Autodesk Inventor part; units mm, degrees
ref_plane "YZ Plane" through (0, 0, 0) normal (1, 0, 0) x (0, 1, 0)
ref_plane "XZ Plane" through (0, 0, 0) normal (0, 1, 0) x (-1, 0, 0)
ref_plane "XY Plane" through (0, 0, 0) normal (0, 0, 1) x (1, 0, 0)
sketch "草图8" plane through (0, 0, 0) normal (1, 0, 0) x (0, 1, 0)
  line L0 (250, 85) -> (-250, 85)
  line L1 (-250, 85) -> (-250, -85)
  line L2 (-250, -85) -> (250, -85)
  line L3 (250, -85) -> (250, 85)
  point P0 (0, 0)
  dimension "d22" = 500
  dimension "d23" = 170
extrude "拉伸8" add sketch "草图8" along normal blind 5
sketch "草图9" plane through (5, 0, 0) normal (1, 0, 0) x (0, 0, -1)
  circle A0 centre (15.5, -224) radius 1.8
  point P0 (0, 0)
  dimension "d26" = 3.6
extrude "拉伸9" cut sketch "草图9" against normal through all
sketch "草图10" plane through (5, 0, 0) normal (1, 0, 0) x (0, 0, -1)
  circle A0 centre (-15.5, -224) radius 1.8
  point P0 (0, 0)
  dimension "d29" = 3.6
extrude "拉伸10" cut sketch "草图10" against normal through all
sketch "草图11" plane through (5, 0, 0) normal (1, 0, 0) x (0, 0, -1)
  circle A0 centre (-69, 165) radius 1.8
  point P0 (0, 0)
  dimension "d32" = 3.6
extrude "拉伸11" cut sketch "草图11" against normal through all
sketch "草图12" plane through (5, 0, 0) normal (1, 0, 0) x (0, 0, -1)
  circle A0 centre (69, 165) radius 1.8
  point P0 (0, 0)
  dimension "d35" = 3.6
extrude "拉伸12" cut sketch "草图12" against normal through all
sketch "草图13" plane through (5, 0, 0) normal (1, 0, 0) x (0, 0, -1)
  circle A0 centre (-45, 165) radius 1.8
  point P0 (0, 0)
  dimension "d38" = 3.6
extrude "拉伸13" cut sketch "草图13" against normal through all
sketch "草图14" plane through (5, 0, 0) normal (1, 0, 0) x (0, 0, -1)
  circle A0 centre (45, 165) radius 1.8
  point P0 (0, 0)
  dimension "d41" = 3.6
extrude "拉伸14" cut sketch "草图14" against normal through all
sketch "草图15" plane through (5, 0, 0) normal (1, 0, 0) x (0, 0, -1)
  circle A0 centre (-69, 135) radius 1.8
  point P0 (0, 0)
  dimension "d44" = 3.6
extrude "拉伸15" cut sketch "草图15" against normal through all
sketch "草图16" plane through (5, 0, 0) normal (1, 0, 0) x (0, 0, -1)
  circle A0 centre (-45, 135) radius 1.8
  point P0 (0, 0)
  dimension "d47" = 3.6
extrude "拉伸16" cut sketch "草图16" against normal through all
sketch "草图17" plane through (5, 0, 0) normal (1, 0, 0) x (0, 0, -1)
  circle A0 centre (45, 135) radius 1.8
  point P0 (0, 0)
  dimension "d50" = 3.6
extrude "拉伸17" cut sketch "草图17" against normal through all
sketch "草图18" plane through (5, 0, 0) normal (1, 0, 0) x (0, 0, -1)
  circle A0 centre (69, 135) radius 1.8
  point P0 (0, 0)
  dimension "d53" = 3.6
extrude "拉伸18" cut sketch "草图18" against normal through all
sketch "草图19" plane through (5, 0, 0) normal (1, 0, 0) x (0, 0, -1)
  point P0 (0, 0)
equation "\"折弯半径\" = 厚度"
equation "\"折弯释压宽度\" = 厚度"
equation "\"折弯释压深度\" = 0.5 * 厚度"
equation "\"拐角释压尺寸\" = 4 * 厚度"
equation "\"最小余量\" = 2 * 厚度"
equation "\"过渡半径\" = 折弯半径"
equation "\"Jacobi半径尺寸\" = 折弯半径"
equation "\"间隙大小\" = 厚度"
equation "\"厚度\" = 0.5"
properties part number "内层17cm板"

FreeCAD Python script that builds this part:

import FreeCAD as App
import Part
import Sketcher
Q = App.Units.Quantity

doc = App.newDocument("Part")
params = doc.addObject("Spreadsheet::Sheet", "Params")
for row, (alias, value) in enumerate([
    ("sketch1_width", "500 mm"),
    ("sketch1_height", "170 mm"),
    ("pad1_length", "5 mm"),
    ("sketch2_diameter", "3.6 mm"),
    ("sketch3_diameter", "3.6 mm"),
    ("sketch4_diameter", "3.6 mm"),
    ("sketch5_diameter", "3.6 mm"),
    ("sketch6_diameter", "3.6 mm"),
    ("sketch7_diameter", "3.6 mm"),
    ("sketch8_diameter", "3.6 mm"),
    ("sketch9_diameter", "3.6 mm"),
    ("sketch10_diameter", "3.6 mm"),
    ("sketch11_diameter", "3.6 mm"),
], start=1):
    params.set(f"A{row}", alias)
    params.set(f"B{row}", "=" + value)
    params.setAlias(f"B{row}", alias)

body = doc.addObject("PartDesign::Body", "Body")

# Sketch on YZ plane
sketch1 = body.newObject("Sketcher::SketchObject", "Sketch")
sketch1.AttachmentSupport = (doc.getObject("YZ_Plane"), [""])
sketch1.MapMode = "FlatFace"
sketch1.addGeometry(Part.LineSegment(App.Vector(250, -85, 0), App.Vector(250, 85, 0)), False)
sketch1.addGeometry(Part.LineSegment(App.Vector(250, 85, 0), App.Vector(-250, 85, 0)), False)
sketch1.addGeometry(Part.LineSegment(App.Vector(-250, 85, 0), App.Vector(-250, -85, 0)), False)
sketch1.addGeometry(Part.LineSegment(App.Vector(-250, -85, 0), App.Vector(250, -85, 0)), False)
sketch1.addConstraint(Sketcher.Constraint("Coincident", 0, 2, 1, 1))
sketch1.addConstraint(Sketcher.Constraint("Coincident", 1, 2, 2, 1))
sketch1.addConstraint(Sketcher.Constraint("Coincident", 2, 2, 3, 1))
sketch1.addConstraint(Sketcher.Constraint("Coincident", 3, 2, 0, 1))
sketch1.addConstraint(Sketcher.Constraint("Vertical", 0))
sketch1.addConstraint(Sketcher.Constraint("Horizontal", 1))
sketch1.addConstraint(Sketcher.Constraint("Vertical", 2))
sketch1.addConstraint(Sketcher.Constraint("Horizontal", 3))
sketch1.addConstraint(Sketcher.Constraint("Symmetric", 0, 2, 2, 2, -1, 1))
sketch1.addConstraint(Sketcher.Constraint("DistanceX", 1, 2, 1, 1, Q("500 mm")))
sketch1.addConstraint(Sketcher.Constraint("DistanceY", 0, 1, 0, 2, Q("170 mm")))
sketch1.setExpression("Constraints[9]", "Params.sketch1_width")
sketch1.setExpression("Constraints[10]", "Params.sketch1_height")
pad1 = body.newObject("PartDesign::Pad", "Pad")
pad1.Profile = sketch1
pad1.setExpression("Length", "Params.pad1_length")

# Sketch on YZ plane
sketch2 = body.newObject("Sketcher::SketchObject", "Sketch001")
sketch2.AttachmentSupport = (doc.getObject("YZ_Plane"), [""])
sketch2.MapMode = "FlatFace"
sketch2.AttachmentOffset = App.Placement(App.Vector(0, 0, 5), App.Rotation())
sketch2.addGeometry(Part.Circle(App.Vector(-224, -15.5, 0), App.Vector(0, 0, 1), 1.8), False)
sketch2.addConstraint(Sketcher.Constraint("Diameter", 0, Q("3.6 mm")))
sketch2.addConstraint(Sketcher.Constraint("DistanceX", 0, 3, -1, 1, Q("224 mm")))
sketch2.addConstraint(Sketcher.Constraint("DistanceY", 0, 3, -1, 1, Q("15.5 mm")))
sketch2.setExpression("Constraints[0]", "Params.sketch2_diameter")
pocket1 = body.newObject("PartDesign::Pocket", "Pocket")
pocket1.Profile = sketch2
pocket1.Type = "ThroughAll"

# Sketch on YZ plane
sketch3 = body.newObject("Sketcher::SketchObject", "Sketch002")
sketch3.AttachmentSupport = (doc.getObject("YZ_Plane"), [""])
sketch3.MapMode = "FlatFace"
sketch3.AttachmentOffset = App.Placement(App.Vector(0, 0, 5), App.Rotation())
sketch3.addGeometry(Part.Circle(App.Vector(-224, 15.5, 0), App.Vector(0, 0, 1), 1.8), False)
sketch3.addConstraint(Sketcher.Constraint("Diameter", 0, Q("3.6 mm")))
sketch3.addConstraint(Sketcher.Constraint("DistanceX", 0, 3, -1, 1, Q("224 mm")))
sketch3.addConstraint(Sketcher.Constraint("DistanceY", -1, 1, 0, 3, Q("15.5 mm")))
sketch3.setExpression("Constraints[0]", "Params.sketch3_diameter")
pocket2 = body.newObject("PartDesign::Pocket", "Pocket001")
pocket2.Profile = sketch3
pocket2.Type = "ThroughAll"

# Sketch on YZ plane
sketch4 = body.newObject("Sketcher::SketchObject", "Sketch003")
sketch4.AttachmentSupport = (doc.getObject("YZ_Plane"), [""])
sketch4.MapMode = "FlatFace"
sketch4.AttachmentOffset = App.Placement(App.Vector(0, 0, 5), App.Rotation())
sketch4.addGeometry(Part.Circle(App.Vector(165, 69, 0), App.Vector(0, 0, 1), 1.8), False)
sketch4.addConstraint(Sketcher.Constraint("Diameter", 0, Q("3.6 mm")))
sketch4.addConstraint(Sketcher.Constraint("DistanceX", -1, 1, 0, 3, Q("165 mm")))
sketch4.addConstraint(Sketcher.Constraint("DistanceY", -1, 1, 0, 3, Q("69 mm")))
sketch4.setExpression("Constraints[0]", "Params.sketch4_diameter")
pocket3 = body.newObject("PartDesign::Pocket", "Pocket002")
pocket3.Profile = sketch4
pocket3.Type = "ThroughAll"

# Sketch on YZ plane
sketch5 = body.newObject("Sketcher::SketchObject", "Sketch004")
sketch5.AttachmentSupport = (doc.getObject("YZ_Plane"), [""])
sketch5.MapMode = "FlatFace"
sketch5.AttachmentOffset = App.Placement(App.Vector(0, 0, 5), App.Rotation())
sketch5.addGeometry(Part.Circle(App.Vector(165, -69, 0), App.Vector(0, 0, 1), 1.8), False)
sketch5.addConstraint(Sketcher.Constraint("Diameter", 0, Q("3.6 mm")))
sketch5.addConstraint(Sketcher.Constraint("DistanceX", -1, 1, 0, 3, Q("165 mm")))
sketch5.addConstraint(Sketcher.Constraint("DistanceY", 0, 3, -1, 1, Q("69 mm")))
sketch5.setExpression("Constraints[0]", "Params.sketch5_diameter")
pocket4 = body.newObject("PartDesign::Pocket", "Pocket003")
pocket4.Profile = sketch5
pocket4.Type = "ThroughAll"

# Sketch on YZ plane
sketch6 = body.newObject("Sketcher::SketchObject", "Sketch005")
sketch6.AttachmentSupport = (doc.getObject("YZ_Plane"), [""])
sketch6.MapMode = "FlatFace"
sketch6.AttachmentOffset = App.Placement(App.Vector(0, 0, 5), App.Rotation())
sketch6.addGeometry(Part.Circle(App.Vector(165, 45, 0), App.Vector(0, 0, 1), 1.8), False)
sketch6.addConstraint(Sketcher.Constraint("Diameter", 0, Q("3.6 mm")))
sketch6.addConstraint(Sketcher.Constraint("DistanceX", -1, 1, 0, 3, Q("165 mm")))
sketch6.addConstraint(Sketcher.Constraint("DistanceY", -1, 1, 0, 3, Q("45 mm")))
sketch6.setExpression("Constraints[0]", "Params.sketch6_diameter")
pocket5 = body.newObject("PartDesign::Pocket", "Pocket004")
pocket5.Profile = sketch6
pocket5.Type = "ThroughAll"

# Sketch on YZ plane
sketch7 = body.newObject("Sketcher::SketchObject", "Sketch006")
sketch7.AttachmentSupport = (doc.getObject("YZ_Plane"), [""])
sketch7.MapMode = "FlatFace"
sketch7.AttachmentOffset = App.Placement(App.Vector(0, 0, 5), App.Rotation())
sketch7.addGeometry(Part.Circle(App.Vector(165, -45, 0), App.Vector(0, 0, 1), 1.8), False)
sketch7.addConstraint(Sketcher.Constraint("Diameter", 0, Q("3.6 mm")))
sketch7.addConstraint(Sketcher.Constraint("DistanceX", -1, 1, 0, 3, Q("165 mm")))
sketch7.addConstraint(Sketcher.Constraint("DistanceY", 0, 3, -1, 1, Q("45 mm")))
sketch7.setExpression("Constraints[0]", "Params.sketch7_diameter")
pocket6 = body.newObject("PartDesign::Pocket", "Pocket005")
pocket6.Profile = sketch7
pocket6.Type = "ThroughAll"

# Sketch on YZ plane
sketch8 = body.newObject("Sketcher::SketchObject", "Sketch007")
sketch8.AttachmentSupport = (doc.getObject("YZ_Plane"), [""])
sketch8.MapMode = "FlatFace"
sketch8.AttachmentOffset = App.Placement(App.Vector(0, 0, 5), App.Rotation())
sketch8.addGeometry(Part.Circle(App.Vector(135, 69, 0), App.Vector(0, 0, 1), 1.8), False)
sketch8.addConstraint(Sketcher.Constraint("Diameter", 0, Q("3.6 mm")))
sketch8.addConstraint(Sketcher.Constraint("DistanceX", -1, 1, 0, 3, Q("135 mm")))
sketch8.addConstraint(Sketcher.Constraint("DistanceY", -1, 1, 0, 3, Q("69 mm")))
sketch8.setExpression("Constraints[0]", "Params.sketch8_diameter")
pocket7 = body.newObject("PartDesign::Pocket", "Pocket006")
pocket7.Profile = sketch8
pocket7.Type = "ThroughAll"

# Sketch on YZ plane
sketch9 = body.newObject("Sketcher::SketchObject", "Sketch008")
sketch9.AttachmentSupport = (doc.getObject("YZ_Plane"), [""])
sketch9.MapMode = "FlatFace"
sketch9.AttachmentOffset = App.Placement(App.Vector(0, 0, 5), App.Rotation())
sketch9.addGeometry(Part.Circle(App.Vector(135, 45, 0), App.Vector(0, 0, 1), 1.8), False)
sketch9.addConstraint(Sketcher.Constraint("Diameter", 0, Q("3.6 mm")))
sketch9.addConstraint(Sketcher.Constraint("DistanceX", -1, 1, 0, 3, Q("135 mm")))
sketch9.addConstraint(Sketcher.Constraint("DistanceY", -1, 1, 0, 3, Q("45 mm")))
sketch9.setExpression("Constraints[0]", "Params.sketch9_diameter")
pocket8 = body.newObject("PartDesign::Pocket", "Pocket007")
pocket8.Profile = sketch9
pocket8.Type = "ThroughAll"

# Sketch on YZ plane
sketch10 = body.newObject("Sketcher::SketchObject", "Sketch009")
sketch10.AttachmentSupport = (doc.getObject("YZ_Plane"), [""])
sketch10.MapMode = "FlatFace"
sketch10.AttachmentOffset = App.Placement(App.Vector(0, 0, 5), App.Rotation())
sketch10.addGeometry(Part.Circle(App.Vector(135, -45, 0), App.Vector(0, 0, 1), 1.8), False)
sketch10.addConstraint(Sketcher.Constraint("Diameter", 0, Q("3.6 mm")))
sketch10.addConstraint(Sketcher.Constraint("DistanceX", -1, 1, 0, 3, Q("135 mm")))
sketch10.addConstraint(Sketcher.Constraint("DistanceY", 0, 3, -1, 1, Q("45 mm")))
sketch10.setExpression("Constraints[0]", "Params.sketch10_diameter")
pocket9 = body.newObject("PartDesign::Pocket", "Pocket008")
pocket9.Profile = sketch10
pocket9.Type = "ThroughAll"

# Sketch on YZ plane
sketch11 = body.newObject("Sketcher::SketchObject", "Sketch010")
sketch11.AttachmentSupport = (doc.getObject("YZ_Plane"), [""])
sketch11.MapMode = "FlatFace"
sketch11.AttachmentOffset = App.Placement(App.Vector(0, 0, 5), App.Rotation())
sketch11.addGeometry(Part.Circle(App.Vector(135, -69, 0), App.Vector(0, 0, 1), 1.8), False)
sketch11.addConstraint(Sketcher.Constraint("Diameter", 0, Q("3.6 mm")))
sketch11.addConstraint(Sketcher.Constraint("DistanceX", -1, 1, 0, 3, Q("135 mm")))
sketch11.addConstraint(Sketcher.Constraint("DistanceY", 0, 3, -1, 1, Q("69 mm")))
sketch11.setExpression("Constraints[0]", "Params.sketch11_diameter")
pocket10 = body.newObject("PartDesign::Pocket", "Pocket009")
pocket10.Profile = sketch11
pocket10.Type = "ThroughAll"

doc.recompute()
